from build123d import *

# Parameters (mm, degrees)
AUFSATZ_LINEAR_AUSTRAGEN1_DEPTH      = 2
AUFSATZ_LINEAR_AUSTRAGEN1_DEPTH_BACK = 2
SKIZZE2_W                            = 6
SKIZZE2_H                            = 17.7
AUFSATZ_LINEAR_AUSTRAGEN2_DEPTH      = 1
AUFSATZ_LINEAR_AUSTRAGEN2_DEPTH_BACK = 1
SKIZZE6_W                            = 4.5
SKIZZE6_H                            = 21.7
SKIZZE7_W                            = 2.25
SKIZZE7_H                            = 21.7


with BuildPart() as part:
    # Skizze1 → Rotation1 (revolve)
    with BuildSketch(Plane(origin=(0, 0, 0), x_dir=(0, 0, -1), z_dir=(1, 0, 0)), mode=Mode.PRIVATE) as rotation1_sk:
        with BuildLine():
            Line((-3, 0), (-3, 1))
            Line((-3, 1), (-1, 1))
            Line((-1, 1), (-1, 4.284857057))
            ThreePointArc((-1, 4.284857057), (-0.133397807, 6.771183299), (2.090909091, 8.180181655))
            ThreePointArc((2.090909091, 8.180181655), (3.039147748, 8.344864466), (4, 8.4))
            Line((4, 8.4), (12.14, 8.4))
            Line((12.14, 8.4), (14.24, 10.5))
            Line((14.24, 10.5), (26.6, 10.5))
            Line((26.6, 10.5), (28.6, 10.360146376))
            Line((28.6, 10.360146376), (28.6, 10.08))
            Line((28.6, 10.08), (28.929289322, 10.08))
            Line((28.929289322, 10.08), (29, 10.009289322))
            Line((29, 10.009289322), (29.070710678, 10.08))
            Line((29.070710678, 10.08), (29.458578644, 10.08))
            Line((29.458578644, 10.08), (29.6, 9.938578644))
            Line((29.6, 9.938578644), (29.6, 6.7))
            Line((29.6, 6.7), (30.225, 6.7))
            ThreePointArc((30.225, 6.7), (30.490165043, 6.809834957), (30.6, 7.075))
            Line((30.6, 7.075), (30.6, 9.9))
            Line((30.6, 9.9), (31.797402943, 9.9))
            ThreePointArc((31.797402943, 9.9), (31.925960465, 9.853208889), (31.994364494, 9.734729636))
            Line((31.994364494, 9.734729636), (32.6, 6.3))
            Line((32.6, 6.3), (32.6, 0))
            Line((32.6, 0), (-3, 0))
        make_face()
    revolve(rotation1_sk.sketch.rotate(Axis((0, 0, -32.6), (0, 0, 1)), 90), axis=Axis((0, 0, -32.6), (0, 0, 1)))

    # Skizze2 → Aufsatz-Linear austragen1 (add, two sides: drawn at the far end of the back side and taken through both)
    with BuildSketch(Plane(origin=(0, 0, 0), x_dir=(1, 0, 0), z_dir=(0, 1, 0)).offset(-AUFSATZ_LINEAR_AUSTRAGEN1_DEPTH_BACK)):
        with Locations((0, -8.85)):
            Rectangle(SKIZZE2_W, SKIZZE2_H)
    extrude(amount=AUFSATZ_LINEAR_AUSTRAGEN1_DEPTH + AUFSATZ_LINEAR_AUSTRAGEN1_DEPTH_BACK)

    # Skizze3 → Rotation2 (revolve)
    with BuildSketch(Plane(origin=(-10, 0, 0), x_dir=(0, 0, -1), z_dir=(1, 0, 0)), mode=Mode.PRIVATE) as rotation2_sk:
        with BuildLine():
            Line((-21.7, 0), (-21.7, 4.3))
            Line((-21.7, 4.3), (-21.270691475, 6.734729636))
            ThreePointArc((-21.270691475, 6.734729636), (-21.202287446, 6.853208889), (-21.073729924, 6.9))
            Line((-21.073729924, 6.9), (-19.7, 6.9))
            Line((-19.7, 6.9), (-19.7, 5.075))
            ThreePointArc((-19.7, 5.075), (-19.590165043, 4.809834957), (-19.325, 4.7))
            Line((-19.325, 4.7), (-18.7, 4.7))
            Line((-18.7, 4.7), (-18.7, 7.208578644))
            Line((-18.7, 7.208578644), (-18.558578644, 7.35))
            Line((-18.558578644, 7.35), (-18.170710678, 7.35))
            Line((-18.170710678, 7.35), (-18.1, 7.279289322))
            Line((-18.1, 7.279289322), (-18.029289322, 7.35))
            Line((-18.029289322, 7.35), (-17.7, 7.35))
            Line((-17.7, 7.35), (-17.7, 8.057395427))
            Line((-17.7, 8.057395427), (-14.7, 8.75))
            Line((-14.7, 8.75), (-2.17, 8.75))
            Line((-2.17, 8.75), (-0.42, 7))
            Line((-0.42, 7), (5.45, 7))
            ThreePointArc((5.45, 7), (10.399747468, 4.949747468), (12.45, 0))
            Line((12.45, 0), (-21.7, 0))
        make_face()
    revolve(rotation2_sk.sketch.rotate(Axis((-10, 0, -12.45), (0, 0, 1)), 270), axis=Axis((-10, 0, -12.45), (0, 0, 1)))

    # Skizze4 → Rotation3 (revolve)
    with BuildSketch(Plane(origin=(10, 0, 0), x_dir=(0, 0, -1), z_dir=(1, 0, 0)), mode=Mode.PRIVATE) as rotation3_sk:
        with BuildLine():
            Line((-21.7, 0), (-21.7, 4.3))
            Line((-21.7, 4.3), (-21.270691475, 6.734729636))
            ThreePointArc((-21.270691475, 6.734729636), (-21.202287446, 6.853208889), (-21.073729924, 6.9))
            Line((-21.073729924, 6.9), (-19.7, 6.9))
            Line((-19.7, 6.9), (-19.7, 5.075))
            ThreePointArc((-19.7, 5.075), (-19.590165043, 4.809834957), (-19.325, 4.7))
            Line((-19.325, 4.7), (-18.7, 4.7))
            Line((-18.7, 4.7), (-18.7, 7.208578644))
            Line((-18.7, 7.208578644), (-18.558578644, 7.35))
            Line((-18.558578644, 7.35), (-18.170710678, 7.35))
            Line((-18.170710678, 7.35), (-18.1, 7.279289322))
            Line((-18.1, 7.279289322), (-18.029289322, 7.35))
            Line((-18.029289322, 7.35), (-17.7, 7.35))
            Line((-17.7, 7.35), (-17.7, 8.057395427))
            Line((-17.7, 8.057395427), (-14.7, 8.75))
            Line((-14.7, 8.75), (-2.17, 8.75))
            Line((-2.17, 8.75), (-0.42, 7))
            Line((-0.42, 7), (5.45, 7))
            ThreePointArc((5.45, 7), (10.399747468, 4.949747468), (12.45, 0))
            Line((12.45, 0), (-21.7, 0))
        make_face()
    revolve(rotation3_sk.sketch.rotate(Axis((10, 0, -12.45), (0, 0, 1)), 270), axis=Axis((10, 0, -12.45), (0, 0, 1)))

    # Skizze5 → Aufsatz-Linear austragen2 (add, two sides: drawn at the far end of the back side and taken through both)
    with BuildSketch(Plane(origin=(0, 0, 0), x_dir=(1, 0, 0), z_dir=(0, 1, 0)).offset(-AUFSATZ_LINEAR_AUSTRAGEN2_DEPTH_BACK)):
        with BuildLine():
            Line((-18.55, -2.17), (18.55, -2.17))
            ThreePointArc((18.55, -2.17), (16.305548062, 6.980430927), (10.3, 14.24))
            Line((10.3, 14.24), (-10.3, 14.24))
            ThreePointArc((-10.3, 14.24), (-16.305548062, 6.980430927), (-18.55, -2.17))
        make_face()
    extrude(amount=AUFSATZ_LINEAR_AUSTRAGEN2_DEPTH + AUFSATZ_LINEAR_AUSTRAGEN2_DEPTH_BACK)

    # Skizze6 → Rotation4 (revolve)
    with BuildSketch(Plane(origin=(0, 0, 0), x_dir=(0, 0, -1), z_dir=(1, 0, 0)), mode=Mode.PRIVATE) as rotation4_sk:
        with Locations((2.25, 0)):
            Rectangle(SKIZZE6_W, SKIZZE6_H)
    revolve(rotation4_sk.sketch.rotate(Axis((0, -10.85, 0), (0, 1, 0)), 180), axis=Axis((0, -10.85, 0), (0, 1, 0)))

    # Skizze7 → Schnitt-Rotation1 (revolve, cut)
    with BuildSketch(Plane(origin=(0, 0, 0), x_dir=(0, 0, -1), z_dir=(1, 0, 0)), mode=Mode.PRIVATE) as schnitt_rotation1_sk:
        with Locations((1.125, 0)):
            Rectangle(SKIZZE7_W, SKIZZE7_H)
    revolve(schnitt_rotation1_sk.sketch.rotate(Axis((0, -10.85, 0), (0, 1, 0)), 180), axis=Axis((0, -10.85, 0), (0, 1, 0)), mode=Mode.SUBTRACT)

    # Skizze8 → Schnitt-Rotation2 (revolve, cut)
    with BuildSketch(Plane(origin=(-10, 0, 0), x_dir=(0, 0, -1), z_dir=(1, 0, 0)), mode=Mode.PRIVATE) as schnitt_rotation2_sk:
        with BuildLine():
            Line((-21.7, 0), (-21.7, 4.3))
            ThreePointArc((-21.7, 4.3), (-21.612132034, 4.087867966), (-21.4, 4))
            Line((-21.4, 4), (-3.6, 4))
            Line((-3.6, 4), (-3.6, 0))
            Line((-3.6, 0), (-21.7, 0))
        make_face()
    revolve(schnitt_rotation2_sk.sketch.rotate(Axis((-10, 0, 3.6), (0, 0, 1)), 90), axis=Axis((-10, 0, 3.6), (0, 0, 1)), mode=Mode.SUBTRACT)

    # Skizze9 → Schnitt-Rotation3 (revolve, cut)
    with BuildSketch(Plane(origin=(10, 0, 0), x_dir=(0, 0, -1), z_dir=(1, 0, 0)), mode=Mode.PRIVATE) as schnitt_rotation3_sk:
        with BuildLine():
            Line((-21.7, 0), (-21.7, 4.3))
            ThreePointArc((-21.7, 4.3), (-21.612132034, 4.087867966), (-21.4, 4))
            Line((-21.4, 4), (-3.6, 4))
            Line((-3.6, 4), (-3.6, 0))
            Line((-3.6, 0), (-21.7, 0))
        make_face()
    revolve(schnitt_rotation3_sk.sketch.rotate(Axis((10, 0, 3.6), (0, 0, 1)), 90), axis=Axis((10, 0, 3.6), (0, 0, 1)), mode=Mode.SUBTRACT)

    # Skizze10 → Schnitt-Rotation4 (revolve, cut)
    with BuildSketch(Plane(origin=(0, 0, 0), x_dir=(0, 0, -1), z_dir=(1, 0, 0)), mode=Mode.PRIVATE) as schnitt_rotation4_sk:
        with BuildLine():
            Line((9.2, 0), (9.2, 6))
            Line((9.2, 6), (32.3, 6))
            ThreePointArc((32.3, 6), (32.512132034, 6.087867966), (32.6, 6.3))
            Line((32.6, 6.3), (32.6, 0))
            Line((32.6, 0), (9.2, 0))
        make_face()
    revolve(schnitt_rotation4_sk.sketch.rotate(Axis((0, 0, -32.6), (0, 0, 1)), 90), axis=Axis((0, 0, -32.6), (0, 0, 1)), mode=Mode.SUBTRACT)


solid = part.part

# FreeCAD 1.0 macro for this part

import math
import FreeCAD as App
import Part
import Sketcher
from FreeCAD import Vector
Q = App.Units.Quantity

doc = App.newDocument("Part")
body = doc.addObject("PartDesign::Body", "Body")

sketch1 = body.newObject("Sketcher::SketchObject", "Sketch")
sketch1.AttachmentSupport = (doc.getObject("YZ_Plane"), [""])
sketch1.MapMode = "FlatFace"
sketch1.addGeometry(Part.LineSegment(Vector(1, 3, 0), Vector(0, 3, 0)), False)
sketch1.addGeometry(Part.LineSegment(Vector(0, 3, 0), Vector(0, -32.6, 0)), False)
sketch1.addGeometry(Part.LineSegment(Vector(0, -32.6, 0), Vector(6.3, -32.6, 0)), False)
sketch1.addGeometry(Part.LineSegment(Vector(6.3, -32.6, 0), Vector(9.73, -31.99, 0)), False)
sketch1.addGeometry(Part.ArcOfCircle(Part.Circle(Vector(9.7, -31.8, 0), Vector(0, 0, 1), 0.2), math.radians(-80), math.radians(0)), False)
sketch1.addGeometry(Part.LineSegment(Vector(9.9, -31.8, 0), Vector(9.9, -30.6, 0)), False)
sketch1.addGeometry(Part.LineSegment(Vector(9.9, -30.6, 0), Vector(7.08, -30.6, 0)), False)
sketch1.addGeometry(Part.ArcOfCircle(Part.Circle(Vector(7.08, -30.23, 0), Vector(0, 0, 1), 0.38), math.radians(180), math.radians(270)), False)
sketch1.addGeometry(Part.LineSegment(Vector(6.7, -30.23, 0), Vector(6.7, -29.6, 0)), False)
sketch1.addGeometry(Part.LineSegment(Vector(6.7, -29.6, 0), Vector(9.94, -29.6, 0)), False)
sketch1.addGeometry(Part.LineSegment(Vector(9.94, -29.6, 0), Vector(10.08, -29.46, 0)), False)
sketch1.addGeometry(Part.LineSegment(Vector(10.08, -29.46, 0), Vector(10.08, -29.07, 0)), False)
sketch1.addGeometry(Part.LineSegment(Vector(10.08, -29.07, 0), Vector(10.01, -29, 0)), False)
sketch1.addGeometry(Part.LineSegment(Vector(10.01, -29, 0), Vector(10.08, -28.93, 0)), False)
sketch1.addGeometry(Part.LineSegment(Vector(10.08, -28.93, 0), Vector(10.08, -28.6, 0)), False)
sketch1.addGeometry(Part.LineSegment(Vector(10.08, -28.6, 0), Vector(10.36, -28.6, 0)), False)
sketch1.addGeometry(Part.LineSegment(Vector(10.36, -28.6, 0), Vector(10.5, -26.6, 0)), False)
sketch1.addGeometry(Part.LineSegment(Vector(10.5, -26.6, 0), Vector(10.5, -14.24, 0)), False)
sketch1.addGeometry(Part.LineSegment(Vector(10.5, -14.24, 0), Vector(8.4, -12.14, 0)), False)
sketch1.addGeometry(Part.LineSegment(Vector(8.4, -12.14, 0), Vector(8.4, -4, 0)), False)
sketch1.addGeometry(Part.ArcOfCircle(Part.Circle(Vector(0, -4, 0), Vector(0, 0, 1), 8.4), math.radians(0), math.radians(13.14)), False)
sketch1.addGeometry(Part.ArcOfCircle(Part.Circle(Vector(4.28, -3, 0), Vector(0, 0, 1), 4), math.radians(13), math.radians(90)), False)
sketch1.addGeometry(Part.LineSegment(Vector(4.28, 1, 0), Vector(1, 1, 0)), False)
sketch1.addGeometry(Part.LineSegment(Vector(1, 1, 0), Vector(1, 3, 0)), False)
sketch1.addConstraint(Sketcher.Constraint("Coincident", 0, 2, 1, 1))
sketch1.addConstraint(Sketcher.Constraint("Coincident", 1, 2, 2, 1))
sketch1.addConstraint(Sketcher.Constraint("Coincident", 2, 2, 3, 1))
sketch1.addConstraint(Sketcher.Constraint("Tangent", 3, 2, 4, 1))
sketch1.addConstraint(Sketcher.Constraint("Tangent", 4, 2, 5, 1))
sketch1.addConstraint(Sketcher.Constraint("Coincident", 5, 2, 6, 1))
sketch1.addConstraint(Sketcher.Constraint("Tangent", 6, 2, 7, 2))
sketch1.addConstraint(Sketcher.Constraint("Tangent", 7, 1, 8, 1))
sketch1.addConstraint(Sketcher.Constraint("Coincident", 8, 2, 9, 1))
sketch1.addConstraint(Sketcher.Constraint("Coincident", 9, 2, 10, 1))
sketch1.addConstraint(Sketcher.Constraint("Coincident", 10, 2, 11, 1))
sketch1.addConstraint(Sketcher.Constraint("Coincident", 11, 2, 12, 1))
sketch1.addConstraint(Sketcher.Constraint("Coincident", 12, 2, 13, 1))
sketch1.addConstraint(Sketcher.Constraint("Coincident", 13, 2, 14, 1))
sketch1.addConstraint(Sketcher.Constraint("Coincident", 14, 2, 15, 1))
sketch1.addConstraint(Sketcher.Constraint("Coincident", 15, 2, 16, 1))
sketch1.addConstraint(Sketcher.Constraint("Coincident", 16, 2, 17, 1))
sketch1.addConstraint(Sketcher.Constraint("Coincident", 17, 2, 18, 1))
sketch1.addConstraint(Sketcher.Constraint("Coincident", 18, 2, 19, 1))
sketch1.addConstraint(Sketcher.Constraint("Tangent", 19, 2, 20, 1))
sketch1.addConstraint(Sketcher.Constraint("Tangent", 20, 2, 21, 1))
sketch1.addConstraint(Sketcher.Constraint("Tangent", 21, 2, 22, 1))
sketch1.addConstraint(Sketcher.Constraint("Coincident", 22, 2, 23, 1))
sketch1.addConstraint(Sketcher.Constraint("Coincident", 23, 2, 0, 1))
sketch1.addConstraint(Sketcher.Constraint("Horizontal", 0))
sketch1.addConstraint(Sketcher.Constraint("Vertical", 1))
sketch1.addConstraint(Sketcher.Constraint("Horizontal", 2))
sketch1.addConstraint(Sketcher.Constraint("Vertical", 5))
sketch1.addConstraint(Sketcher.Constraint("Horizontal", 6))
sketch1.addConstraint(Sketcher.Constraint("Vertical", 8))
sketch1.addConstraint(Sketcher.Constraint("Horizontal", 9))
sketch1.addConstraint(Sketcher.Constraint("Vertical", 11))
sketch1.addConstraint(Sketcher.Constraint("Vertical", 14))
sketch1.addConstraint(Sketcher.Constraint("Horizontal", 15))
sketch1.addConstraint(Sketcher.Constraint("Vertical", 17))
sketch1.addConstraint(Sketcher.Constraint("Vertical", 19))
sketch1.addConstraint(Sketcher.Constraint("Horizontal", 22))
sketch1.addConstraint(Sketcher.Constraint("Vertical", 23))
sketch1.addConstraint(Sketcher.Constraint("PointOnObject", 20, 3, -2))
sketch1.addConstraint(Sketcher.Constraint("PointOnObject", 0, 2, -2))
sketch1.addConstraint(Sketcher.Constraint("Perpendicular", 10, 12))
sketch1.addConstraint(Sketcher.Constraint("Perpendicular", 12, 13))
sketch1.addConstraint(Sketcher.Constraint("Perpendicular", 13, 18))
sketch1.addConstraint(Sketcher.Constraint("Vertical", 11, 2, 13, 2))
sketch1.addConstraint(Sketcher.Constraint("Equal", 12, 13))
sketch1.addConstraint(Sketcher.Constraint("Radius", 21, Q("4 mm")))
sketch1.addConstraint(Sketcher.Constraint("Radius", 4, Q("0.2 mm")))
sketch1.addConstraint(Sketcher.Constraint("Radius", 20, Q("8.4 mm")))
sketch1.addConstraint(Sketcher.Constraint("DistanceX", 0, 2, 0, 1, Q("1 mm")))
sketch1.addConstraint(Sketcher.Constraint("DistanceY", 23, 1, 23, 2, Q("2 mm")))
sketch1.addConstraint(Sketcher.Constraint("Angle", 3, Q("10 deg")))
sketch1.addConstraint(Sketcher.Constraint("Angle", 16, Q("86 deg")))
sketch1.addConstraint(Sketcher.Constraint("DistanceX", 2, 1, 2, 2, Q("6.3 mm")))
sketch1.addConstraint(Sketcher.Constraint("DistanceY", 1, 2, 1, 1, Q("35.6 mm")))
sketch1.addConstraint(Sketcher.Constraint("DistanceY", 20, 3, -1, 1, Q("4 mm")))
sketch1.addConstraint(Sketcher.Constraint("DistanceY", 21, 3, -1, 1, Q("3 mm")))
sketch1.addConstraint(Sketcher.Constraint("DistanceY", 12, 2, -1, 1, Q("29 mm")))
sketch1.addConstraint(Sketcher.Constraint("Radius", 7, Q("0.375 mm")))
sketch1.addConstraint(Sketcher.Constraint("DistanceY", 2, 2, 5, 2, Q("2 mm")))
sketch1.addConstraint(Sketcher.Constraint("DistanceX", 7, 1, 4, 3, Q("3 mm")))
sketch1.addConstraint(Sketcher.Constraint("DistanceY", 6, 2, 8, 2, Q("1 mm")))
sketch1.addConstraint(Sketcher.Constraint("DistanceY", 9, 2, 14, 2, Q("1 mm")))
sketch1.addConstraint(Sketcher.Constraint("DistanceY", 15, 2, 16, 2, Q("2 mm")))
sketch1.addConstraint(Sketcher.Constraint("Distance", 10, Q("0.2 mm")))
sketch1.addConstraint(Sketcher.Constraint("Distance", 12, Q("0.1 mm")))
sketch1.addConstraint(Sketcher.Constraint("DistanceY", 17, 1, 17, 2, Q("12.36 mm")))
sketch1.addConstraint(Sketcher.Constraint("DistanceY", 19, 1, 19, 2, Q("8.14 mm")))
sketch1.addConstraint(Sketcher.Constraint("DistanceX", -1, 1, 4, 3, Q("9.7 mm")))
sketch1.addConstraint(Sketcher.Constraint("DistanceX", -1, 1, 10, 2, Q("10.08 mm")))
revolution = body.newObject("PartDesign::Revolution", "Revolution")
revolution.Profile = sketch1
revolution.ReferenceAxis = (sketch1, ["V_Axis"])
revolution.Angle = 360

sketch2 = body.newObject("Sketcher::SketchObject", "Sketch001")
sketch2.AttachmentSupport = (doc.getObject("XZ_Plane"), [""])
sketch2.MapMode = "FlatFace"
sketch2.addGeometry(Part.LineSegment(Vector(-3, 0, 0), Vector(-3, 18, 0)), False)
sketch2.addGeometry(Part.LineSegment(Vector(-3, 18, 0), Vector(3, 18, 0)), False)
sketch2.addGeometry(Part.LineSegment(Vector(3, 18, 0), Vector(3, 0, 0)), False)
sketch2.addGeometry(Part.LineSegment(Vector(3, 0, 0), Vector(-3, 0, 0)), False)
sketch2.addConstraint(Sketcher.Constraint("Coincident", 0, 2, 1, 1))
sketch2.addConstraint(Sketcher.Constraint("Coincident", 1, 2, 2, 1))
sketch2.addConstraint(Sketcher.Constraint("Coincident", 2, 2, 3, 1))
sketch2.addConstraint(Sketcher.Constraint("Coincident", 3, 2, 0, 1))
sketch2.addConstraint(Sketcher.Constraint("Vertical", 0))
sketch2.addConstraint(Sketcher.Constraint("Horizontal", 1))
sketch2.addConstraint(Sketcher.Constraint("Vertical", 2))
sketch2.addConstraint(Sketcher.Constraint("Horizontal", 3))
sketch2.addConstraint(Sketcher.Constraint("Symmetric", 2, 2, 3, 2, -1, 1))
sketch2.addConstraint(Sketcher.Constraint("DistanceX", 1, 1, 1, 2, Q("6 mm")))
sketch2.addConstraint(Sketcher.Constraint("DistanceY", 0, 1, 0, 2, Q("17.7 mm")))
pad1 = body.newObject("PartDesign::Pad", "Pad")
pad1.Profile = sketch2
pad1.Type = "TwoLengths"
pad1.Length = 2
pad1.Length2 = 2
pad1.Reversed = True

sketch3 = body.newObject("Sketcher::SketchObject", "Sketch002")
sketch3.AttachmentSupport = (doc.getObject("YZ_Plane"), [""])
sketch3.MapMode = "FlatFace"
sketch3.AttachmentOffset = App.Placement(Vector(0, 0, -10), App.Rotation())
sketch3.addGeometry(Part.LineSegment(Vector(4.3, 21.7, 0), Vector(0, 21.7, 0)), False)
sketch3.addGeometry(Part.LineSegment(Vector(0, 21.7, 0), Vector(0, -12.45, 0)), False)
sketch3.addGeometry(Part.ArcOfCircle(Part.Circle(Vector(0, -5.45, 0), Vector(0, 0, 1), 7), math.radians(-90), math.radians(0)), False)
sketch3.addGeometry(Part.LineSegment(Vector(7, -5.45, 0), Vector(7, 0.42, 0)), False)
sketch3.addGeometry(Part.LineSegment(Vector(7, 0.42, 0), Vector(8.75, 2.17, 0)), False)
sketch3.addGeometry(Part.LineSegment(Vector(8.75, 2.17, 0), Vector(8.75, 14.7, 0)), False)
sketch3.addGeometry(Part.LineSegment(Vector(8.75, 14.7, 0), Vector(8.06, 17.7, 0)), False)
sketch3.addGeometry(Part.LineSegment(Vector(8.06, 17.7, 0), Vector(7.35, 17.7, 0)), False)
sketch3.addGeometry(Part.LineSegment(Vector(7.35, 17.7, 0), Vector(7.35, 18.03, 0)), False)
sketch3.addGeometry(Part.LineSegment(Vector(7.35, 18.03, 0), Vector(7.28, 18.1, 0)), False)
sketch3.addGeometry(Part.LineSegment(Vector(7.28, 18.1, 0), Vector(7.35, 18.17, 0)), False)
sketch3.addGeometry(Part.LineSegment(Vector(7.35, 18.17, 0), Vector(7.35, 18.56, 0)), False)
sketch3.addGeometry(Part.LineSegment(Vector(7.35, 18.56, 0), Vector(7.21, 18.7, 0)), False)
sketch3.addGeometry(Part.LineSegment(Vector(7.21, 18.7, 0), Vector(4.7, 18.7, 0)), False)
sketch3.addGeometry(Part.LineSegment(Vector(4.7, 18.7, 0), Vector(4.7, 19.32, 0)), False)
sketch3.addGeometry(Part.ArcOfCircle(Part.Circle(Vector(5.08, 19.32, 0), Vector(0, 0, 1), 0.38), math.radians(90), math.radians(180)), False)
sketch3.addGeometry(Part.LineSegment(Vector(5.08, 19.7, 0), Vector(6.9, 19.7, 0)), False)
sketch3.addGeometry(Part.LineSegment(Vector(6.9, 19.7, 0), Vector(6.9, 21.07, 0)), False)
sketch3.addGeometry(Part.ArcOfCircle(Part.Circle(Vector(6.7, 21.07, 0), Vector(0, 0, 1), 0.2), math.radians(0), math.radians(80)), False)
sketch3.addGeometry(Part.LineSegment(Vector(6.73, 21.27, 0), Vector(4.3, 21.7, 0)), False)
sketch3.addConstraint(Sketcher.Constraint("Coincident", 0, 2, 1, 1))
sketch3.addConstraint(Sketcher.Constraint("Coincident", 1, 2, 2, 1))
sketch3.addConstraint(Sketcher.Constraint("Tangent", 2, 2, 3, 1))
sketch3.addConstraint(Sketcher.Constraint("Coincident", 3, 2, 4, 1))
sketch3.addConstraint(Sketcher.Constraint("Coincident", 4, 2, 5, 1))
sketch3.addConstraint(Sketcher.Constraint("Coincident", 5, 2, 6, 1))
sketch3.addConstraint(Sketcher.Constraint("Coincident", 6, 2, 7, 1))
sketch3.addConstraint(Sketcher.Constraint("Coincident", 7, 2, 8, 1))
sketch3.addConstraint(Sketcher.Constraint("Coincident", 8, 2, 9, 1))
sketch3.addConstraint(Sketcher.Constraint("Coincident", 9, 2, 10, 1))
sketch3.addConstraint(Sketcher.Constraint("Coincident", 10, 2, 11, 1))
sketch3.addConstraint(Sketcher.Constraint("Coincident", 11, 2, 12, 1))
sketch3.addConstraint(Sketcher.Constraint("Coincident", 12, 2, 13, 1))
sketch3.addConstraint(Sketcher.Constraint("Coincident", 13, 2, 14, 1))
sketch3.addConstraint(Sketcher.Constraint("Tangent", 14, 2, 15, 2))
sketch3.addConstraint(Sketcher.Constraint("Tangent", 15, 1, 16, 1))
sketch3.addConstraint(Sketcher.Constraint("Coincident", 16, 2, 17, 1))
sketch3.addConstraint(Sketcher.Constraint("Tangent", 17, 2, 18, 1))
sketch3.addConstraint(Sketcher.Constraint("Tangent", 18, 2, 19, 1))
sketch3.addConstraint(Sketcher.Constraint("Coincident", 19, 2, 0, 1))
sketch3.addConstraint(Sketcher.Constraint("Horizontal", 0))
sketch3.addConstraint(Sketcher.Constraint("Vertical", 1))
sketch3.addConstraint(Sketcher.Constraint("Vertical", 3))
sketch3.addConstraint(Sketcher.Constraint("Vertical", 5))
sketch3.addConstraint(Sketcher.Constraint("Horizontal", 7))
sketch3.addConstraint(Sketcher.Constraint("Vertical", 8))
sketch3.addConstraint(Sketcher.Constraint("Vertical", 11))
sketch3.addConstraint(Sketcher.Constraint("Horizontal", 13))
sketch3.addConstraint(Sketcher.Constraint("Vertical", 14))
sketch3.addConstraint(Sketcher.Constraint("Horizontal", 16))
sketch3.addConstraint(Sketcher.Constraint("Vertical", 17))
sketch3.addConstraint(Sketcher.Constraint("PointOnObject", 2, 3, -2))
sketch3.addConstraint(Sketcher.Constraint("PointOnObject", 0, 2, -2))
sketch3.addConstraint(Sketcher.Constraint("Perpendicular", 4, 9))
sketch3.addConstraint(Sketcher.Constraint("Perpendicular", 9, 10))
sketch3.addConstraint(Sketcher.Constraint("Perpendicular", 10, 12))
sketch3.addConstraint(Sketcher.Constraint("Vertical", 8, 2, 10, 2))
sketch3.addConstraint(Sketcher.Constraint("Equal", 9, 10))
sketch3.addConstraint(Sketcher.Constraint("Radius", 2, Q("7 mm")))
sketch3.addConstraint(Sketcher.Constraint("Radius", 18, Q("0.2 mm")))
sketch3.addConstraint(Sketcher.Constraint("Angle", 6, Q("103 deg")))
sketch3.addConstraint(Sketcher.Constraint("Angle", 19, Q("170 deg")))
sketch3.addConstraint(Sketcher.Constraint("DistanceX", 0, 2, 0, 1, Q("4.3 mm")))
sketch3.addConstraint(Sketcher.Constraint("Radius", 15, Q("0.375 mm")))
sketch3.addConstraint(Sketcher.Constraint("DistanceY", 5, 2, 0, 2, Q("7 mm")))
sketch3.addConstraint(Sketcher.Constraint("DistanceY", 5, 2, 6, 2, Q("3 mm")))
sketch3.addConstraint(Sketcher.Constraint("DistanceY", 7, 2, 12, 2, Q("1 mm")))
sketch3.addConstraint(Sketcher.Constraint("DistanceX", 14, 2, 18, 3, Q("2 mm")))
sketch3.addConstraint(Sketcher.Constraint("DistanceY", 13, 2, 15, 1, Q("1 mm")))
sketch3.addConstraint(Sketcher.Constraint("Distance", 9, Q("0.1 mm")))
sketch3.addConstraint(Sketcher.Constraint("Distance", 12, Q("0.2 mm")))
sketch3.addConstraint(Sketcher.Constraint("DistanceY", 1, 2, 1, 1, Q("34.15 mm")))
sketch3.addConstraint(Sketcher.Constraint("DistanceY", 3, 1, 3, 2, Q("5.87 mm")))
sketch3.addConstraint(Sketcher.Constraint("DistanceY", 5, 1, 5, 2, Q("12.53 mm")))
sketch3.addConstraint(Sketcher.Constraint("DistanceX", -1, 1, 18, 3, Q("6.7 mm")))
sketch3.addConstraint(Sketcher.Constraint("DistanceY", -1, 1, 0, 2, Q("21.7 mm")))
sketch3.addConstraint(Sketcher.Constraint("DistanceY", -1, 1, 9, 2, Q("18.1 mm")))
sketch3.addConstraint(Sketcher.Constraint("DistanceX", 7, 2, 5, 2, Q("1.4 mm")))
revolution2 = body.newObject("PartDesign::Revolution", "Revolution001")
revolution2.Profile = sketch3
revolution2.ReferenceAxis = (sketch3, ["V_Axis"])
revolution2.Angle = 360

sketch4 = body.newObject("Sketcher::SketchObject", "Sketch003")
sketch4.AttachmentSupport = (doc.getObject("YZ_Plane"), [""])
sketch4.MapMode = "FlatFace"
sketch4.AttachmentOffset = App.Placement(Vector(0, 0, 10), App.Rotation())
sketch4.addGeometry(Part.LineSegment(Vector(4.3, 21.7, 0), Vector(0, 21.7, 0)), False)
sketch4.addGeometry(Part.LineSegment(Vector(0, 21.7, 0), Vector(0, -12.45, 0)), False)
sketch4.addGeometry(Part.ArcOfCircle(Part.Circle(Vector(0, -5.45, 0), Vector(0, 0, 1), 7), math.radians(-90), math.radians(0)), False)
sketch4.addGeometry(Part.LineSegment(Vector(7, -5.45, 0), Vector(7, 0.42, 0)), False)
sketch4.addGeometry(Part.LineSegment(Vector(7, 0.42, 0), Vector(8.75, 2.17, 0)), False)
sketch4.addGeometry(Part.LineSegment(Vector(8.75, 2.17, 0), Vector(8.75, 14.7, 0)), False)
sketch4.addGeometry(Part.LineSegment(Vector(8.75, 14.7, 0), Vector(8.06, 17.7, 0)), False)
sketch4.addGeometry(Part.LineSegment(Vector(8.06, 17.7, 0), Vector(7.35, 17.7, 0)), False)
sketch4.addGeometry(Part.LineSegment(Vector(7.35, 17.7, 0), Vector(7.35, 18.03, 0)), False)
sketch4.addGeometry(Part.LineSegment(Vector(7.35, 18.03, 0), Vector(7.28, 18.1, 0)), False)
sketch4.addGeometry(Part.LineSegment(Vector(7.28, 18.1, 0), Vector(7.35, 18.17, 0)), False)
sketch4.addGeometry(Part.LineSegment(Vector(7.35, 18.17, 0), Vector(7.35, 18.56, 0)), False)
sketch4.addGeometry(Part.LineSegment(Vector(7.35, 18.56, 0), Vector(7.21, 18.7, 0)), False)
sketch4.addGeometry(Part.LineSegment(Vector(7.21, 18.7, 0), Vector(4.7, 18.7, 0)), False)
sketch4.addGeometry(Part.LineSegment(Vector(4.7, 18.7, 0), Vector(4.7, 19.32, 0)), False)
sketch4.addGeometry(Part.ArcOfCircle(Part.Circle(Vector(5.08, 19.32, 0), Vector(0, 0, 1), 0.38), math.radians(90), math.radians(180)), False)
sketch4.addGeometry(Part.LineSegment(Vector(5.08, 19.7, 0), Vector(6.9, 19.7, 0)), False)
sketch4.addGeometry(Part.LineSegment(Vector(6.9, 19.7, 0), Vector(6.9, 21.07, 0)), False)
sketch4.addGeometry(Part.ArcOfCircle(Part.Circle(Vector(6.7, 21.07, 0), Vector(0, 0, 1), 0.2), math.radians(0), math.radians(80)), False)
sketch4.addGeometry(Part.LineSegment(Vector(6.73, 21.27, 0), Vector(4.3, 21.7, 0)), False)
sketch4.addConstraint(Sketcher.Constraint("Coincident", 0, 2, 1, 1))
sketch4.addConstraint(Sketcher.Constraint("Coincident", 1, 2, 2, 1))
sketch4.addConstraint(Sketcher.Constraint("Tangent", 2, 2, 3, 1))
sketch4.addConstraint(Sketcher.Constraint("Coincident", 3, 2, 4, 1))
sketch4.addConstraint(Sketcher.Constraint("Coincident", 4, 2, 5, 1))
sketch4.addConstraint(Sketcher.Constraint("Coincident", 5, 2, 6, 1))
sketch4.addConstraint(Sketcher.Constraint("Coincident", 6, 2, 7, 1))
sketch4.addConstraint(Sketcher.Constraint("Coincident", 7, 2, 8, 1))
sketch4.addConstraint(Sketcher.Constraint("Coincident", 8, 2, 9, 1))
sketch4.addConstraint(Sketcher.Constraint("Coincident", 9, 2, 10, 1))
sketch4.addConstraint(Sketcher.Constraint("Coincident", 10, 2, 11, 1))
sketch4.addConstraint(Sketcher.Constraint("Coincident", 11, 2, 12, 1))
sketch4.addConstraint(Sketcher.Constraint("Coincident", 12, 2, 13, 1))
sketch4.addConstraint(Sketcher.Constraint("Coincident", 13, 2, 14, 1))
sketch4.addConstraint(Sketcher.Constraint("Tangent", 14, 2, 15, 2))
sketch4.addConstraint(Sketcher.Constraint("Tangent", 15, 1, 16, 1))
sketch4.addConstraint(Sketcher.Constraint("Coincident", 16, 2, 17, 1))
sketch4.addConstraint(Sketcher.Constraint("Tangent", 17, 2, 18, 1))
sketch4.addConstraint(Sketcher.Constraint("Tangent", 18, 2, 19, 1))
sketch4.addConstraint(Sketcher.Constraint("Coincident", 19, 2, 0, 1))
sketch4.addConstraint(Sketcher.Constraint("Horizontal", 0))
sketch4.addConstraint(Sketcher.Constraint("Vertical", 1))
sketch4.addConstraint(Sketcher.Constraint("Vertical", 3))
sketch4.addConstraint(Sketcher.Constraint("Vertical", 5))
sketch4.addConstraint(Sketcher.Constraint("Horizontal", 7))
sketch4.addConstraint(Sketcher.Constraint("Vertical", 8))
sketch4.addConstraint(Sketcher.Constraint("Vertical", 11))
sketch4.addConstraint(Sketcher.Constraint("Horizontal", 13))
sketch4.addConstraint(Sketcher.Constraint("Vertical", 14))
sketch4.addConstraint(Sketcher.Constraint("Horizontal", 16))
sketch4.addConstraint(Sketcher.Constraint("Vertical", 17))
sketch4.addConstraint(Sketcher.Constraint("PointOnObject", 2, 3, -2))
sketch4.addConstraint(Sketcher.Constraint("PointOnObject", 0, 2, -2))
sketch4.addConstraint(Sketcher.Constraint("Perpendicular", 4, 9))
sketch4.addConstraint(Sketcher.Constraint("Perpendicular", 9, 10))
sketch4.addConstraint(Sketcher.Constraint("Perpendicular", 10, 12))
sketch4.addConstraint(Sketcher.Constraint("Vertical", 8, 2, 10, 2))
sketch4.addConstraint(Sketcher.Constraint("Equal", 9, 10))
sketch4.addConstraint(Sketcher.Constraint("Radius", 2, Q("7 mm")))
sketch4.addConstraint(Sketcher.Constraint("Radius", 18, Q("0.2 mm")))
sketch4.addConstraint(Sketcher.Constraint("Angle", 6, Q("103 deg")))
sketch4.addConstraint(Sketcher.Constraint("Angle", 19, Q("170 deg")))
sketch4.addConstraint(Sketcher.Constraint("DistanceX", 0, 2, 0, 1, Q("4.3 mm")))
sketch4.addConstraint(Sketcher.Constraint("Radius", 15, Q("0.375 mm")))
sketch4.addConstraint(Sketcher.Constraint("DistanceY", 5, 2, 0, 2, Q("7 mm")))
sketch4.addConstraint(Sketcher.Constraint("DistanceY", 5, 2, 6, 2, Q("3 mm")))
sketch4.addConstraint(Sketcher.Constraint("DistanceY", 7, 2, 12, 2, Q("1 mm")))
sketch4.addConstraint(Sketcher.Constraint("DistanceX", 14, 2, 18, 3, Q("2 mm")))
sketch4.addConstraint(Sketcher.Constraint("DistanceY", 13, 2, 15, 1, Q("1 mm")))
sketch4.addConstraint(Sketcher.Constraint("Distance", 9, Q("0.1 mm")))
sketch4.addConstraint(Sketcher.Constraint("Distance", 12, Q("0.2 mm")))
sketch4.addConstraint(Sketcher.Constraint("DistanceY", 1, 2, 1, 1, Q("34.15 mm")))
sketch4.addConstraint(Sketcher.Constraint("DistanceY", 3, 1, 3, 2, Q("5.87 mm")))
sketch4.addConstraint(Sketcher.Constraint("DistanceY", 5, 1, 5, 2, Q("12.53 mm")))
sketch4.addConstraint(Sketcher.Constraint("DistanceX", -1, 1, 18, 3, Q("6.7 mm")))
sketch4.addConstraint(Sketcher.Constraint("DistanceY", -1, 1, 0, 2, Q("21.7 mm")))
sketch4.addConstraint(Sketcher.Constraint("DistanceY", -1, 1, 9, 2, Q("18.1 mm")))
sketch4.addConstraint(Sketcher.Constraint("DistanceX", 7, 2, 5, 2, Q("1.4 mm")))
revolution3 = body.newObject("PartDesign::Revolution", "Revolution002")
revolution3.Profile = sketch4
revolution3.ReferenceAxis = (sketch4, ["V_Axis"])
revolution3.Angle = 360

sketch5 = body.newObject("Sketcher::SketchObject", "Sketch004")
sketch5.AttachmentSupport = (doc.getObject("XZ_Plane"), [""])
sketch5.MapMode = "FlatFace"
sketch5.addGeometry(Part.LineSegment(Vector(-19, 2, 0), Vector(19, 2, 0)), False)
sketch5.addGeometry(Part.ArcOfCircle(Part.Circle(Vector(-3, 2, 0), Vector(0, 0, 1), 21), math.radians(-53), math.radians(-1)), False)
sketch5.addGeometry(Part.LineSegment(Vector(10, -14, 0), Vector(-10, -14, 0)), False)
sketch5.addGeometry(Part.ArcOfCircle(Part.Circle(Vector(3, 2, 0), Vector(0, 0, 1), 21), math.radians(-179), math.radians(-127)), False)
sketch5.addConstraint(Sketcher.Constraint("Coincident", 0, 2, 1, 2))
sketch5.addConstraint(Sketcher.Constraint("Coincident", 1, 1, 2, 1))
sketch5.addConstraint(Sketcher.Constraint("Coincident", 2, 2, 3, 2))
sketch5.addConstraint(Sketcher.Constraint("Coincident", 3, 1, 0, 1))
sketch5.addConstraint(Sketcher.Constraint("Horizontal", 0))
sketch5.addConstraint(Sketcher.Constraint("Horizontal", 2))
sketch5.addConstraint(Sketcher.Constraint("Equal", 1, 3))
sketch5.addConstraint(Sketcher.Constraint("Symmetric", 1, 3, 3, 3, -2))
sketch5.addConstraint(Sketcher.Constraint("DistanceX", 0, 1, 0, 2, Q("37.1 mm")))
sketch5.addConstraint(Sketcher.Constraint("DistanceX", 2, 2, 2, 1, Q("20.6 mm")))
sketch5.addConstraint(Sketcher.Constraint("DistanceY", -1, 1, 0, 2, Q("2.17 mm")))
sketch5.addConstraint(Sketcher.Constraint("DistanceY", 1, 1, -1, 1, Q("14.24 mm")))
sketch5.addConstraint(Sketcher.Constraint("Radius", 1, Q("21.086748 mm")))
pad2 = body.newObject("PartDesign::Pad", "Pad001")
pad2.Profile = sketch5
pad2.Type = "TwoLengths"
pad2.Length = 1
pad2.Length2 = 1
pad2.Reversed = True

sketch6 = body.newObject("Sketcher::SketchObject", "Sketch005")
sketch6.AttachmentSupport = (doc.getObject("YZ_Plane"), [""])
sketch6.MapMode = "FlatFace"
sketch6.addGeometry(Part.LineSegment(Vector(10.8, 0, 0), Vector(-10.8, 0, 0)), False)
sketch6.addGeometry(Part.LineSegment(Vector(-10.8, 0, 0), Vector(-10.8, -4.5, 0)), False)
sketch6.addGeometry(Part.LineSegment(Vector(-10.8, -4.5, 0), Vector(10.8, -4.5, 0)), False)
sketch6.addGeometry(Part.LineSegment(Vector(10.8, -4.5, 0), Vector(10.8, 0, 0)), False)
sketch6.addConstraint(Sketcher.Constraint("Coincident", 0, 2, 1, 1))
sketch6.addConstraint(Sketcher.Constraint("Coincident", 1, 2, 2, 1))
sketch6.addConstraint(Sketcher.Constraint("Coincident", 2, 2, 3, 1))
sketch6.addConstraint(Sketcher.Constraint("Coincident", 3, 2, 0, 1))
sketch6.addConstraint(Sketcher.Constraint("Horizontal", 0))
sketch6.addConstraint(Sketcher.Constraint("Vertical", 1))
sketch6.addConstraint(Sketcher.Constraint("Horizontal", 2))
sketch6.addConstraint(Sketcher.Constraint("Vertical", 3))
sketch6.addConstraint(Sketcher.Constraint("Symmetric", 0, 2, 3, 2, -1, 1))
sketch6.addConstraint(Sketcher.Constraint("DistanceX", 0, 2, 0, 1, Q("21.7 mm")))
sketch6.addConstraint(Sketcher.Constraint("DistanceY", 1, 2, 1, 1, Q("4.5 mm")))
revolution4 = body.newObject("PartDesign::Revolution", "Revolution003")
revolution4.Profile = sketch6
revolution4.ReferenceAxis = (sketch6, ["H_Axis"])
revolution4.Angle = 360

sketch7 = body.newObject("Sketcher::SketchObject", "Sketch006")
sketch7.AttachmentSupport = (doc.getObject("YZ_Plane"), [""])
sketch7.MapMode = "FlatFace"
sketch7.addGeometry(Part.LineSegment(Vector(10.8, 0, 0), Vector(-10.8, 0, 0)), False)
sketch7.addGeometry(Part.LineSegment(Vector(-10.8, 0, 0), Vector(-10.8, -2.2, 0)), False)
sketch7.addGeometry(Part.LineSegment(Vector(-10.8, -2.2, 0), Vector(10.8, -2.2, 0)), False)
sketch7.addGeometry(Part.LineSegment(Vector(10.8, -2.2, 0), Vector(10.8, 0, 0)), False)
sketch7.addConstraint(Sketcher.Constraint("Coincident", 0, 2, 1, 1))
sketch7.addConstraint(Sketcher.Constraint("Coincident", 1, 2, 2, 1))
sketch7.addConstraint(Sketcher.Constraint("Coincident", 2, 2, 3, 1))
sketch7.addConstraint(Sketcher.Constraint("Coincident", 3, 2, 0, 1))
sketch7.addConstraint(Sketcher.Constraint("Horizontal", 0))
sketch7.addConstraint(Sketcher.Constraint("Vertical", 1))
sketch7.addConstraint(Sketcher.Constraint("Horizontal", 2))
sketch7.addConstraint(Sketcher.Constraint("Vertical", 3))
sketch7.addConstraint(Sketcher.Constraint("Symmetric", 0, 2, 3, 2, -1, 1))
sketch7.addConstraint(Sketcher.Constraint("DistanceX", 0, 2, 0, 1, Q("21.7 mm")))
sketch7.addConstraint(Sketcher.Constraint("DistanceY", 1, 2, 1, 1, Q("2.25 mm")))
groove = body.newObject("PartDesign::Groove", "Groove")
groove.Profile = sketch7
groove.ReferenceAxis = (sketch7, ["H_Axis"])
groove.Angle = 360

sketch8 = body.newObject("Sketcher::SketchObject", "Sketch007")
sketch8.AttachmentSupport = (doc.getObject("YZ_Plane"), [""])
sketch8.MapMode = "FlatFace"
sketch8.AttachmentOffset = App.Placement(Vector(0, 0, -10), App.Rotation())
sketch8.addGeometry(Part.LineSegment(Vector(4.3, 21.7, 0), Vector(0, 21.7, 0)), False)
sketch8.addGeometry(Part.LineSegment(Vector(0, 21.7, 0), Vector(0, 3.6, 0)), False)
sketch8.addGeometry(Part.LineSegment(Vector(0, 3.6, 0), Vector(4, 3.6, 0)), False)
sketch8.addGeometry(Part.LineSegment(Vector(4, 3.6, 0), Vector(4, 21.4, 0)), False)
sketch8.addGeometry(Part.ArcOfCircle(Part.Circle(Vector(4.3, 21.4, 0), Vector(0, 0, 1), 0.3), math.radians(90), math.radians(180)), False)
sketch8.addConstraint(Sketcher.Constraint("Coincident", 0, 2, 1, 1))
sketch8.addConstraint(Sketcher.Constraint("Coincident", 1, 2, 2, 1))
sketch8.addConstraint(Sketcher.Constraint("Coincident", 2, 2, 3, 1))
sketch8.addConstraint(Sketcher.Constraint("Tangent", 3, 2, 4, 2))
sketch8.addConstraint(Sketcher.Constraint("Tangent", 4, 1, 0, 1))
sketch8.addConstraint(Sketcher.Constraint("Horizontal", 0))
sketch8.addConstraint(Sketcher.Constraint("Vertical", 1))
sketch8.addConstraint(Sketcher.Constraint("Horizontal", 2))
sketch8.addConstraint(Sketcher.Constraint("Vertical", 3))
sketch8.addConstraint(Sketcher.Constraint("PointOnObject", 0, 2, -2))
sketch8.addConstraint(Sketcher.Constraint("Radius", 4, Q("0.3 mm")))
sketch8.addConstraint(Sketcher.Constraint("DistanceX", 2, 1, 2, 2, Q("4 mm")))
sketch8.addConstraint(Sketcher.Constraint("DistanceY", 1, 2, 1, 1, Q("18.1 mm")))
sketch8.addConstraint(Sketcher.Constraint("DistanceY", -1, 1, 4, 3, Q("21.4 mm")))
groove2 = body.newObject("PartDesign::Groove", "Groove001")
groove2.Profile = sketch8
groove2.ReferenceAxis = (sketch8, ["V_Axis"])
groove2.Angle = 360

sketch9 = body.newObject("Sketcher::SketchObject", "Sketch008")
sketch9.AttachmentSupport = (doc.getObject("YZ_Plane"), [""])
sketch9.MapMode = "FlatFace"
sketch9.AttachmentOffset = App.Placement(Vector(0, 0, 10), App.Rotation())
sketch9.addGeometry(Part.LineSegment(Vector(4.3, 21.7, 0), Vector(0, 21.7, 0)), False)
sketch9.addGeometry(Part.LineSegment(Vector(0, 21.7, 0), Vector(0, 3.6, 0)), False)
sketch9.addGeometry(Part.LineSegment(Vector(0, 3.6, 0), Vector(4, 3.6, 0)), False)
sketch9.addGeometry(Part.LineSegment(Vector(4, 3.6, 0), Vector(4, 21.4, 0)), False)
sketch9.addGeometry(Part.ArcOfCircle(Part.Circle(Vector(4.3, 21.4, 0), Vector(0, 0, 1), 0.3), math.radians(90), math.radians(180)), False)
sketch9.addConstraint(Sketcher.Constraint("Coincident", 0, 2, 1, 1))
sketch9.addConstraint(Sketcher.Constraint("Coincident", 1, 2, 2, 1))
sketch9.addConstraint(Sketcher.Constraint("Coincident", 2, 2, 3, 1))
sketch9.addConstraint(Sketcher.Constraint("Tangent", 3, 2, 4, 2))
sketch9.addConstraint(Sketcher.Constraint("Tangent", 4, 1, 0, 1))
sketch9.addConstraint(Sketcher.Constraint("Horizontal", 0))
sketch9.addConstraint(Sketcher.Constraint("Vertical", 1))
sketch9.addConstraint(Sketcher.Constraint("Horizontal", 2))
sketch9.addConstraint(Sketcher.Constraint("Vertical", 3))
sketch9.addConstraint(Sketcher.Constraint("PointOnObject", 0, 2, -2))
sketch9.addConstraint(Sketcher.Constraint("Radius", 4, Q("0.3 mm")))
sketch9.addConstraint(Sketcher.Constraint("DistanceX", 2, 1, 2, 2, Q("4 mm")))
sketch9.addConstraint(Sketcher.Constraint("DistanceY", 1, 2, 1, 1, Q("18.1 mm")))
sketch9.addConstraint(Sketcher.Constraint("DistanceY", -1, 1, 4, 3, Q("21.4 mm")))
groove3 = body.newObject("PartDesign::Groove", "Groove002")
groove3.Profile = sketch9
groove3.ReferenceAxis = (sketch9, ["V_Axis"])
groove3.Angle = 360

sketch10 = body.newObject("Sketcher::SketchObject", "Sketch009")
sketch10.AttachmentSupport = (doc.getObject("YZ_Plane"), [""])
sketch10.MapMode = "FlatFace"
sketch10.addGeometry(Part.LineSegment(Vector(6, -9.2, 0), Vector(0, -9.2, 0)), False)
sketch10.addGeometry(Part.LineSegment(Vector(0, -9.2, 0), Vector(0, -32.6, 0)), False)
sketch10.addGeometry(Part.LineSegment(Vector(0, -32.6, 0), Vector(6.3, -32.6, 0)), False)
sketch10.addGeometry(Part.ArcOfCircle(Part.Circle(Vector(6.3, -32.3, 0), Vector(0, 0, 1), 0.3), math.radians(-180), math.radians(-90)), False)
sketch10.addGeometry(Part.LineSegment(Vector(6, -32.3, 0), Vector(6, -9.2, 0)), False)
sketch10.addConstraint(Sketcher.Constraint("Coincident", 0, 2, 1, 1))
sketch10.addConstraint(Sketcher.Constraint("Coincident", 1, 2, 2, 1))
sketch10.addConstraint(Sketcher.Constraint("Tangent", 2, 2, 3, 2))
sketch10.addConstraint(Sketcher.Constraint("Tangent", 3, 1, 4, 1))
sketch10.addConstraint(Sketcher.Constraint("Coincident", 4, 2, 0, 1))
sketch10.addConstraint(Sketcher.Constraint("Horizontal", 0))
sketch10.addConstraint(Sketcher.Constraint("Vertical", 1))
sketch10.addConstraint(Sketcher.Constraint("Horizontal", 2))
sketch10.addConstraint(Sketcher.Constraint("Vertical", 4))
sketch10.addConstraint(Sketcher.Constraint("PointOnObject", 0, 2, -2))
sketch10.addConstraint(Sketcher.Constraint("Radius", 3, Q("0.3 mm")))
sketch10.addConstraint(Sketcher.Constraint("DistanceX", 0, 2, 0, 1, Q("6 mm")))
sketch10.addConstraint(Sketcher.Constraint("DistanceY", 1, 2, 1, 1, Q("23.4 mm")))
sketch10.addConstraint(Sketcher.Constraint("DistanceY", 3, 3, -1, 1, Q("32.3 mm")))
groove4 = body.newObject("PartDesign::Groove", "Groove003")
groove4.Profile = sketch10
groove4.ReferenceAxis = (sketch10, ["V_Axis"])
groove4.Angle = 360

doc.recompute()
